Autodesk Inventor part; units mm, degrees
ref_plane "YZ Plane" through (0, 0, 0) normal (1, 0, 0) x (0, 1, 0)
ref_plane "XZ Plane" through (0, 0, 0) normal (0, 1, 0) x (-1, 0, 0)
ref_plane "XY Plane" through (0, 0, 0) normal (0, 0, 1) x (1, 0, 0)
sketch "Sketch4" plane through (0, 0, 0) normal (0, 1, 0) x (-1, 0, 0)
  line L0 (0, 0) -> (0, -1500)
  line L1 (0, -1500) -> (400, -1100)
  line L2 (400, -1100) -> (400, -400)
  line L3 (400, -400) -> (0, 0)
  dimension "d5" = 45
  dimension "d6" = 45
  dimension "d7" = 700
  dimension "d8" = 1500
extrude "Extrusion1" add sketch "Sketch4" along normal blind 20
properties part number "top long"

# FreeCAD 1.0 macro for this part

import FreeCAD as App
import Part
import Sketcher

V = App.Vector

doc = App.newDocument("Part")
body = doc.addObject("PartDesign::Body", "Body")

# Sketch on XZ plane
sketch1 = body.newObject("Sketcher::SketchObject", "Sketch")
sketch1.AttachmentSupport = (doc.getObject("XZ_Plane"), [""])
sketch1.MapMode = "FlatFace"
sketch1.addGeometry(Part.LineSegment(V(-400, -400, 0), V(0, 0, 0)), False)
sketch1.addGeometry(Part.LineSegment(V(0, 0, 0), V(0, -1500, 0)), False)
sketch1.addGeometry(Part.LineSegment(V(0, -1500, 0), V(-400, -1100, 0)), False)
sketch1.addGeometry(Part.LineSegment(V(-400, -1100, 0), V(-400, -400, 0)), False)
sketch1.addConstraint(Sketcher.Constraint("Coincident", 0, 2, 1, 1))
sketch1.addConstraint(Sketcher.Constraint("Coincident", 1, 2, 2, 1))
sketch1.addConstraint(Sketcher.Constraint("Coincident", 2, 2, 3, 1))
sketch1.addConstraint(Sketcher.Constraint("Coincident", 3, 2, 0, 1))
sketch1.addConstraint(Sketcher.Constraint("Vertical", 1))
sketch1.addConstraint(Sketcher.Constraint("Vertical", 3))
sketch1.addConstraint(Sketcher.Constraint("Coincident", 0, 2, -1, 1))
sketch1.addConstraint(Sketcher.Constraint("Perpendicular", 0, 2))
sketch1.addConstraint(Sketcher.Constraint("Equal", 0, 2))
sketch1.addConstraint(Sketcher.Constraint("DistanceY", 1, 2, 1, 1, 1500.0))
sketch1.addConstraint(Sketcher.Constraint("DistanceY", 3, 1, 3, 2, 700.0))
pad1 = body.newObject("PartDesign::Pad", "Pad")
pad1.Profile = sketch1
pad1.Length = 20
pad1.Reversed = True

doc.recompute()
